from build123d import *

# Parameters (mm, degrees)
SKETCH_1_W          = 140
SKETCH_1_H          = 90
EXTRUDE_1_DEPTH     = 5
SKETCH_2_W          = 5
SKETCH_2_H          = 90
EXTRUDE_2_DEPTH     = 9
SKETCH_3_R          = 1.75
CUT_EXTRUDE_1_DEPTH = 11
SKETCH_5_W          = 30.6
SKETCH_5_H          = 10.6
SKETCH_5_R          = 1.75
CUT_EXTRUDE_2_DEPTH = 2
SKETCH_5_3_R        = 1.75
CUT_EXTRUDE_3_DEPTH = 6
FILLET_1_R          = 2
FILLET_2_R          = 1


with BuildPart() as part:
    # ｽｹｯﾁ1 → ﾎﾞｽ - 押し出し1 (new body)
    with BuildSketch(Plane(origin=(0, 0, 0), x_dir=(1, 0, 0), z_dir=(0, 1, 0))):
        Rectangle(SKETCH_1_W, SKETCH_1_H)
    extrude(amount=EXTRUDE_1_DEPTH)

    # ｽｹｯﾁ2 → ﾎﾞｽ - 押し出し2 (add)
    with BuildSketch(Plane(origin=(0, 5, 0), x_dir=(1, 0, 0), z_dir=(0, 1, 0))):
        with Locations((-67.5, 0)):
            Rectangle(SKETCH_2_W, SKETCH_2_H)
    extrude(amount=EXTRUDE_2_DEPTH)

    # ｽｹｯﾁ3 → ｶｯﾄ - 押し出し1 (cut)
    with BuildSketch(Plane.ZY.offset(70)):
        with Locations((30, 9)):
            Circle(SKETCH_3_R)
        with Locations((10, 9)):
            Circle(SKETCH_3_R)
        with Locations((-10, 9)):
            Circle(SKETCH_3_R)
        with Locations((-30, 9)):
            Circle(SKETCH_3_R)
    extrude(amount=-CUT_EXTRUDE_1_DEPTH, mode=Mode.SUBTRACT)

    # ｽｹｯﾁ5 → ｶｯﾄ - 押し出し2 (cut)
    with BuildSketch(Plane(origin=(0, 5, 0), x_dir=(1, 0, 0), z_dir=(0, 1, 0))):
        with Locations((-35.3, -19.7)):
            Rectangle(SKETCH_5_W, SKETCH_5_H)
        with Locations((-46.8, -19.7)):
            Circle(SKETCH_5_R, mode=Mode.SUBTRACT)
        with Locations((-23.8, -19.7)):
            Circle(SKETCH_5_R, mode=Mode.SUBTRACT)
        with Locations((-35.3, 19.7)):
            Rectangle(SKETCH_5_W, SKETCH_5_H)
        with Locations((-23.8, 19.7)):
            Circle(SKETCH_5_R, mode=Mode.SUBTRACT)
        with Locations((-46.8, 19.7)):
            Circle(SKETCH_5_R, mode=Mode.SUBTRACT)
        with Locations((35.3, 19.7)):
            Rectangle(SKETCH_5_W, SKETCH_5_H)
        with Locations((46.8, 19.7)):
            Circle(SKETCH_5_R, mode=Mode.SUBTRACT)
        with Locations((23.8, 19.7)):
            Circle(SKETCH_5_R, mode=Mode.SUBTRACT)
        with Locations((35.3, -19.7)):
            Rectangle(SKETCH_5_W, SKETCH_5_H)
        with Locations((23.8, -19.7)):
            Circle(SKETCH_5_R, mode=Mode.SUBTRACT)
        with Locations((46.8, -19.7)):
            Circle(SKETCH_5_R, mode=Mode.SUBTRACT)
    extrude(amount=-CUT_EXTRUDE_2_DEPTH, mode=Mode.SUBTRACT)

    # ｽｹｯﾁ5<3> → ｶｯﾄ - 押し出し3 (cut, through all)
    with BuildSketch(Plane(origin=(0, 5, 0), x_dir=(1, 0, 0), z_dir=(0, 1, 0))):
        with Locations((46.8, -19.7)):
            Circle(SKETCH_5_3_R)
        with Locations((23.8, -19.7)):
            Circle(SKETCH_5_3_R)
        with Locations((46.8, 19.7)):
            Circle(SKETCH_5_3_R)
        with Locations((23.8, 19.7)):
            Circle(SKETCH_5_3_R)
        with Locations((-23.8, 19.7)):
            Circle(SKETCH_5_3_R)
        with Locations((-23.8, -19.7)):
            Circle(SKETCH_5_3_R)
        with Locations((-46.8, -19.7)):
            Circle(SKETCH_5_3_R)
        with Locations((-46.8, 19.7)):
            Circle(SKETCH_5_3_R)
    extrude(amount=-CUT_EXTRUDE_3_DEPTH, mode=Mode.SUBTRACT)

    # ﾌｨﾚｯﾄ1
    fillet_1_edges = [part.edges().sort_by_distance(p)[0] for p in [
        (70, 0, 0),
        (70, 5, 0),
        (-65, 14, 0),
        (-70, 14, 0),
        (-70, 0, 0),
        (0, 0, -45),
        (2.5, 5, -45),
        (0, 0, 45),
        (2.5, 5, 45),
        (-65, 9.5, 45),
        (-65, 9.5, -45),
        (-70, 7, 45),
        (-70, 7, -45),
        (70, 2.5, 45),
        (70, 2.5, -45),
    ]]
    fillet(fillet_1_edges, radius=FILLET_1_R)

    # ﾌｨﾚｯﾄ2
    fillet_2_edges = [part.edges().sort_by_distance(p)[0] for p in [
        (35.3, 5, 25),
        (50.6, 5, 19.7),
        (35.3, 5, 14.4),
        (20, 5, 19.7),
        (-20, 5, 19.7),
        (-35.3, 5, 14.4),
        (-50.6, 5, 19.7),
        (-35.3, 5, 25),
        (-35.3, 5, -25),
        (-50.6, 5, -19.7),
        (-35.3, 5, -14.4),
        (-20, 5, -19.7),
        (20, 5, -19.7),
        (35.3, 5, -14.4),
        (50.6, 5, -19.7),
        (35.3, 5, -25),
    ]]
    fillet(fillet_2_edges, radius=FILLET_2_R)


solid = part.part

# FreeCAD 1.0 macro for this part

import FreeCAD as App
import Part
import Sketcher

V = App.Vector
Q = App.Units.Quantity


def edges_at(feature, points):
    """Names of the edges that pass closest to the given points."""
    edges = feature.Shape.Edges
    near = lambda p: min(range(len(edges)), key=lambda i: edges[i].distToShape(Part.Vertex(*p))[0])
    return sorted({f"Edge{near(p) + 1}" for p in points})

doc = App.newDocument("Part")
body = doc.addObject("PartDesign::Body", "Body")

# Sketch on XZ plane
sketch1 = doc.addObject("Sketcher::SketchObject", "Sketch")
body.addObject(sketch1)
sketch1.AttachmentSupport = (doc.XZ_Plane, [""])
sketch1.MapMode = "FlatFace"
sketch1.addGeometry(Part.LineSegment(V(-70, -45, 0), V(-70, 45, 0)), False)
sketch1.addGeometry(Part.LineSegment(V(-70, 45, 0), V(70, 45, 0)), False)
sketch1.addGeometry(Part.LineSegment(V(70, 45, 0), V(70, -45, 0)), False)
sketch1.addGeometry(Part.LineSegment(V(70, -45, 0), V(-70, -45, 0)), False)
sketch1.addConstraint(Sketcher.Constraint("Coincident", 0, 2, 1, 1))
sketch1.addConstraint(Sketcher.Constraint("Coincident", 1, 2, 2, 1))
sketch1.addConstraint(Sketcher.Constraint("Coincident", 2, 2, 3, 1))
sketch1.addConstraint(Sketcher.Constraint("Coincident", 3, 2, 0, 1))
sketch1.addConstraint(Sketcher.Constraint("Vertical", 0))
sketch1.addConstraint(Sketcher.Constraint("Horizontal", 1))
sketch1.addConstraint(Sketcher.Constraint("Vertical", 2))
sketch1.addConstraint(Sketcher.Constraint("Horizontal", 3))
sketch1.addConstraint(Sketcher.Constraint("Symmetric", 0, 2, 2, 2, -1, 1))
sketch1.addConstraint(Sketcher.Constraint("DistanceX", 1, 1, 1, 2, Q("140 mm")))
sketch1.addConstraint(Sketcher.Constraint("DistanceY", 0, 1, 0, 2, Q("90 mm")))
pad1 = doc.addObject("PartDesign::Pad", "Pad")
body.addObject(pad1)
pad1.Profile = sketch1
pad1.Length = 5
pad1.Reversed = True

# Sketch on XZ plane
sketch2 = doc.addObject("Sketcher::SketchObject", "Sketch001")
body.addObject(sketch2)
sketch2.AttachmentSupport = (doc.XZ_Plane, [""])
sketch2.MapMode = "FlatFace"
sketch2.AttachmentOffset = App.Placement(V(0, 0, -5), App.Rotation())
sketch2.addGeometry(Part.LineSegment(V(-70, -45, 0), V(-70, 45, 0)), False)
sketch2.addGeometry(Part.LineSegment(V(-70, 45, 0), V(-65, 45, 0)), False)
sketch2.addGeometry(Part.LineSegment(V(-65, 45, 0), V(-65, -45, 0)), False)
sketch2.addGeometry(Part.LineSegment(V(-65, -45, 0), V(-70, -45, 0)), False)
sketch2.addConstraint(Sketcher.Constraint("Coincident", 0, 2, 1, 1))
sketch2.addConstraint(Sketcher.Constraint("Coincident", 1, 2, 2, 1))
sketch2.addConstraint(Sketcher.Constraint("Coincident", 2, 2, 3, 1))
sketch2.addConstraint(Sketcher.Constraint("Coincident", 3, 2, 0, 1))
sketch2.addConstraint(Sketcher.Constraint("Vertical", 0))
sketch2.addConstraint(Sketcher.Constraint("Horizontal", 1))
sketch2.addConstraint(Sketcher.Constraint("Vertical", 2))
sketch2.addConstraint(Sketcher.Constraint("Horizontal", 3))
sketch2.addConstraint(Sketcher.Constraint("DistanceX", 1, 1, 1, 2, Q("5 mm")))
sketch2.addConstraint(Sketcher.Constraint("DistanceY", 0, 1, 0, 2, Q("90 mm")))
sketch2.addConstraint(Sketcher.Constraint("DistanceX", 0, 2, -1, 1, Q("70 mm")))
sketch2.addConstraint(Sketcher.Constraint("DistanceY", -1, 1, 0, 2, Q("45 mm")))
pad2 = doc.addObject("PartDesign::Pad", "Pad001")
body.addObject(pad2)
pad2.Profile = sketch2
pad2.Length = 9
pad2.Reversed = True

# Sketch on YZ plane
sketch3 = doc.addObject("Sketcher::SketchObject", "Sketch002")
body.addObject(sketch3)
sketch3.AttachmentSupport = (doc.YZ_Plane, [""])
sketch3.MapMode = "FlatFace"
sketch3.AttachmentOffset = App.Placement(V(0, 0, -70), App.Rotation())
sketch3.addGeometry(Part.Circle(V(9, 30, 0), V(0, 0, 1), 1.8), False)
sketch3.addGeometry(Part.Circle(V(9, 10, 0), V(0, 0, 1), 1.8), False)
sketch3.addGeometry(Part.Circle(V(9, -10, 0), V(0, 0, 1), 1.8), False)
sketch3.addGeometry(Part.Circle(V(9, -30, 0), V(0, 0, 1), 1.8), False)
sketch3.addConstraint(Sketcher.Constraint("Equal", 0, 1))
sketch3.addConstraint(Sketcher.Constraint("Equal", 1, 2))
sketch3.addConstraint(Sketcher.Constraint("Equal", 2, 3))
sketch3.addConstraint(Sketcher.Constraint("Symmetric", 1, 3, 2, 3, -1))
sketch3.addConstraint(Sketcher.Constraint("Symmetric", 0, 3, 3, 3, -1))
sketch3.addConstraint(Sketcher.Constraint("Vertical", 0, 3, 1, 3))
sketch3.addConstraint(Sketcher.Constraint("Diameter", 0, Q("3.5 mm")))
sketch3.addConstraint(Sketcher.Constraint("DistanceX", -1, 1, 0, 3, Q("9 mm")))
sketch3.addConstraint(Sketcher.Constraint("DistanceY", -1, 1, 0, 3, Q("30 mm")))
sketch3.addConstraint(Sketcher.Constraint("DistanceY", -1, 1, 1, 3, Q("10 mm")))
pocket1 = doc.addObject("PartDesign::Pocket", "Pocket")
body.addObject(pocket1)
pocket1.Profile = sketch3
pocket1.Length = 11
pocket1.Reversed = True

# Sketch on XZ plane
sketch4 = doc.addObject("Sketcher::SketchObject", "Sketch003")
body.addObject(sketch4)
sketch4.AttachmentSupport = (doc.XZ_Plane, [""])
sketch4.MapMode = "FlatFace"
sketch4.AttachmentOffset = App.Placement(V(0, 0, -5), App.Rotation())
sketch4.addGeometry(Part.LineSegment(V(-50.6, 14.4, 0), V(-50.6, 25, 0)), False)
sketch4.addGeometry(Part.LineSegment(V(-50.6, 25, 0), V(-20, 25, 0)), False)
sketch4.addGeometry(Part.LineSegment(V(-20, 25, 0), V(-20, 14.4, 0)), False)
sketch4.addGeometry(Part.LineSegment(V(-20, 14.4, 0), V(-50.6, 14.4, 0)), False)
sketch4.addGeometry(Part.Circle(V(-46.8, 19.7, 0), V(0, 0, 1), 1.8), False)
sketch4.addGeometry(Part.Circle(V(-23.8, 19.7, 0), V(0, 0, 1), 1.8), False)
sketch4.addGeometry(Part.LineSegment(V(-50.6, -25, 0), V(-50.6, -14.4, 0)), False)
sketch4.addGeometry(Part.LineSegment(V(-50.6, -14.4, 0), V(-20, -14.4, 0)), False)
sketch4.addGeometry(Part.LineSegment(V(-20, -14.4, 0), V(-20, -25, 0)), False)
sketch4.addGeometry(Part.LineSegment(V(-20, -25, 0), V(-50.6, -25, 0)), False)
sketch4.addGeometry(Part.Circle(V(-46.8, -19.7, 0), V(0, 0, 1), 1.8), False)
sketch4.addGeometry(Part.Circle(V(-23.8, -19.7, 0), V(0, 0, 1), 1.8), False)
sketch4.addGeometry(Part.LineSegment(V(20, -25, 0), V(20, -14.4, 0)), False)
sketch4.addGeometry(Part.LineSegment(V(20, -14.4, 0), V(50.6, -14.4, 0)), False)
sketch4.addGeometry(Part.LineSegment(V(50.6, -14.4, 0), V(50.6, -25, 0)), False)
sketch4.addGeometry(Part.LineSegment(V(50.6, -25, 0), V(20, -25, 0)), False)
sketch4.addGeometry(Part.Circle(V(23.8, -19.7, 0), V(0, 0, 1), 1.8), False)
sketch4.addGeometry(Part.Circle(V(46.8, -19.7, 0), V(0, 0, 1), 1.8), False)
sketch4.addGeometry(Part.LineSegment(V(20, 14.4, 0), V(20, 25, 0)), False)
sketch4.addGeometry(Part.LineSegment(V(20, 25, 0), V(50.6, 25, 0)), False)
sketch4.addGeometry(Part.LineSegment(V(50.6, 25, 0), V(50.6, 14.4, 0)), False)
sketch4.addGeometry(Part.LineSegment(V(50.6, 14.4, 0), V(20, 14.4, 0)), False)
sketch4.addGeometry(Part.Circle(V(23.8, 19.7, 0), V(0, 0, 1), 1.8), False)
sketch4.addGeometry(Part.Circle(V(46.8, 19.7, 0), V(0, 0, 1), 1.8), False)
sketch4.addConstraint(Sketcher.Constraint("Coincident", 0, 2, 1, 1))
sketch4.addConstraint(Sketcher.Constraint("Coincident", 1, 2, 2, 1))
sketch4.addConstraint(Sketcher.Constraint("Coincident", 2, 2, 3, 1))
sketch4.addConstraint(Sketcher.Constraint("Coincident", 3, 2, 0, 1))
sketch4.addConstraint(Sketcher.Constraint("Coincident", 6, 2, 7, 1))
sketch4.addConstraint(Sketcher.Constraint("Coincident", 7, 2, 8, 1))
sketch4.addConstraint(Sketcher.Constraint("Coincident", 8, 2, 9, 1))
sketch4.addConstraint(Sketcher.Constraint("Coincident", 9, 2, 6, 1))
sketch4.addConstraint(Sketcher.Constraint("Coincident", 12, 2, 13, 1))
sketch4.addConstraint(Sketcher.Constraint("Coincident", 13, 2, 14, 1))
sketch4.addConstraint(Sketcher.Constraint("Coincident", 14, 2, 15, 1))
sketch4.addConstraint(Sketcher.Constraint("Coincident", 15, 2, 12, 1))
sketch4.addConstraint(Sketcher.Constraint("Coincident", 18, 2, 19, 1))
sketch4.addConstraint(Sketcher.Constraint("Coincident", 19, 2, 20, 1))
sketch4.addConstraint(Sketcher.Constraint("Coincident", 20, 2, 21, 1))
sketch4.addConstraint(Sketcher.Constraint("Coincident", 21, 2, 18, 1))
sketch4.addConstraint(Sketcher.Constraint("Vertical", 0))
sketch4.addConstraint(Sketcher.Constraint("Horizontal", 1))
sketch4.addConstraint(Sketcher.Constraint("Vertical", 2))
sketch4.addConstraint(Sketcher.Constraint("Horizontal", 3))
sketch4.addConstraint(Sketcher.Constraint("Vertical", 6))
sketch4.addConstraint(Sketcher.Constraint("Horizontal", 7))
sketch4.addConstraint(Sketcher.Constraint("Vertical", 8))
sketch4.addConstraint(Sketcher.Constraint("Horizontal", 9))
sketch4.addConstraint(Sketcher.Constraint("Vertical", 12))
sketch4.addConstraint(Sketcher.Constraint("Horizontal", 13))
sketch4.addConstraint(Sketcher.Constraint("Vertical", 14))
sketch4.addConstraint(Sketcher.Constraint("Horizontal", 15))
sketch4.addConstraint(Sketcher.Constraint("Vertical", 18))
sketch4.addConstraint(Sketcher.Constraint("Horizontal", 19))
sketch4.addConstraint(Sketcher.Constraint("Vertical", 20))
sketch4.addConstraint(Sketcher.Constraint("Horizontal", 21))
sketch4.addConstraint(Sketcher.Constraint("Equal", 4, 5))
sketch4.addConstraint(Sketcher.Constraint("Equal", 5, 10))
sketch4.addConstraint(Sketcher.Constraint("Equal", 10, 11))
sketch4.addConstraint(Sketcher.Constraint("Equal", 11, 16))
sketch4.addConstraint(Sketcher.Constraint("Equal", 16, 17))
sketch4.addConstraint(Sketcher.Constraint("Equal", 17, 22))
sketch4.addConstraint(Sketcher.Constraint("Equal", 22, 23))
sketch4.addConstraint(Sketcher.Constraint("Symmetric", 5, 3, 16, 3, -1, 1))
sketch4.addConstraint(Sketcher.Constraint("Symmetric", 4, 3, 17, 3, -1, 1))
sketch4.addConstraint(Sketcher.Constraint("Symmetric", 11, 3, 22, 3, -1, 1))
sketch4.addConstraint(Sketcher.Constraint("Symmetric", 10, 3, 23, 3, -1, 1))
sketch4.addConstraint(Sketcher.Constraint("Symmetric", 2, 2, 12, 2, -1, 1))
sketch4.addConstraint(Sketcher.Constraint("Symmetric", 0, 2, 14, 2, -1, 1))
sketch4.addConstraint(Sketcher.Constraint("Symmetric", 8, 2, 18, 2, -1, 1))
sketch4.addConstraint(Sketcher.Constraint("Symmetric", 6, 2, 20, 2, -1, 1))
sketch4.addConstraint(Sketcher.Constraint("Symmetric", 11, 3, 16, 3, -2))
sketch4.addConstraint(Sketcher.Constraint("Symmetric", 10, 3, 17, 3, -2))
sketch4.addConstraint(Sketcher.Constraint("Symmetric", 7, 2, 12, 2, -2))
sketch4.addConstraint(Sketcher.Constraint("Symmetric", 9, 2, 14, 2, -2))
sketch4.addConstraint(Sketcher.Constraint("Horizontal", 4, 3, 5, 3))
sketch4.addConstraint(Sketcher.Constraint("Diameter", 4, Q("3.5 mm")))
sketch4.addConstraint(Sketcher.Constraint("DistanceX", 1, 1, 1, 2, Q("30.6 mm")))
sketch4.addConstraint(Sketcher.Constraint("DistanceY", 0, 1, 0, 2, Q("10.6 mm")))
sketch4.addConstraint(Sketcher.Constraint("DistanceY", -1, 1, 0, 2, Q("25 mm")))
sketch4.addConstraint(Sketcher.Constraint("DistanceX", 1, 2, -1, 1, Q("20 mm")))
sketch4.addConstraint(Sketcher.Constraint("DistanceX", 4, 3, 5, 3, Q("23 mm")))
sketch4.addConstraint(Sketcher.Constraint("DistanceX", 4, 3, -1, 1, Q("46.8 mm")))
sketch4.addConstraint(Sketcher.Constraint("DistanceY", -1, 1, 4, 3, Q("19.7 mm")))
pocket2 = doc.addObject("PartDesign::Pocket", "Pocket001")
body.addObject(pocket2)
pocket2.Profile = sketch4
pocket2.Length = 2
pocket2.Reversed = True

# Sketch on XZ plane
sketch5 = doc.addObject("Sketcher::SketchObject", "Sketch004")
body.addObject(sketch5)
sketch5.AttachmentSupport = (doc.XZ_Plane, [""])
sketch5.MapMode = "FlatFace"
sketch5.AttachmentOffset = App.Placement(V(0, 0, -5), App.Rotation())
sketch5.addGeometry(Part.Circle(V(46.8, 19.7, 0), V(0, 0, 1), 1.8), False)
sketch5.addGeometry(Part.Circle(V(23.8, 19.7, 0), V(0, 0, 1), 1.8), False)
sketch5.addGeometry(Part.Circle(V(46.8, -19.7, 0), V(0, 0, 1), 1.8), False)
sketch5.addGeometry(Part.Circle(V(23.8, -19.7, 0), V(0, 0, 1), 1.8), False)
sketch5.addGeometry(Part.Circle(V(-23.8, -19.7, 0), V(0, 0, 1), 1.8), False)
sketch5.addGeometry(Part.Circle(V(-23.8, 19.7, 0), V(0, 0, 1), 1.8), False)
sketch5.addGeometry(Part.Circle(V(-46.8, 19.7, 0), V(0, 0, 1), 1.8), False)
sketch5.addGeometry(Part.Circle(V(-46.8, -19.7, 0), V(0, 0, 1), 1.8), False)
sketch5.addConstraint(Sketcher.Constraint("Equal", 0, 1))
sketch5.addConstraint(Sketcher.Constraint("Equal", 1, 2))
sketch5.addConstraint(Sketcher.Constraint("Equal", 2, 3))
sketch5.addConstraint(Sketcher.Constraint("Equal", 3, 4))
sketch5.addConstraint(Sketcher.Constraint("Equal", 4, 5))
sketch5.addConstraint(Sketcher.Constraint("Equal", 5, 6))
sketch5.addConstraint(Sketcher.Constraint("Equal", 6, 7))
sketch5.addConstraint(Sketcher.Constraint("Symmetric", 1, 3, 4, 3, -1, 1))
sketch5.addConstraint(Sketcher.Constraint("Symmetric", 3, 3, 5, 3, -1, 1))
sketch5.addConstraint(Sketcher.Constraint("Symmetric", 2, 3, 6, 3, -1, 1))
sketch5.addConstraint(Sketcher.Constraint("Symmetric", 0, 3, 7, 3, -1, 1))
sketch5.addConstraint(Sketcher.Constraint("Symmetric", 3, 3, 4, 3, -2))
sketch5.addConstraint(Sketcher.Constraint("Symmetric", 0, 3, 6, 3, -2))
sketch5.addConstraint(Sketcher.Constraint("Horizontal", 0, 3, 1, 3))
sketch5.addConstraint(Sketcher.Constraint("Diameter", 0, Q("3.5 mm")))
sketch5.addConstraint(Sketcher.Constraint("DistanceX", 1, 3, 0, 3, Q("23 mm")))
sketch5.addConstraint(Sketcher.Constraint("DistanceX", -1, 1, 0, 3, Q("46.8 mm")))
sketch5.addConstraint(Sketcher.Constraint("DistanceY", -1, 1, 0, 3, Q("19.7 mm")))
pocket3 = doc.addObject("PartDesign::Pocket", "Pocket002")
body.addObject(pocket3)
pocket3.Profile = sketch5
pocket3.Type = "ThroughAll"
pocket3.Reversed = True
doc.recompute()

fillet = doc.addObject("PartDesign::Fillet", "Fillet")
body.addObject(fillet)
fillet.Base = (pocket3, edges_at(pocket3, [
    (70, 0, 0),
    (70, 5, 0),
    (-65, 14, 0),
    (-70, 14, 0),
    (-70, 0, 0),
    (0, 0, -45),
    (2.5, 5, -45),
    (0, 0, 45),
    (2.5, 5, 45),
    (-65, 9.5, 45),
    (-65, 9.5, -45),
    (-70, 7, 45),
    (-70, 7, -45),
    (70, 2.5, 45),
    (70, 2.5, -45),
]))
fillet.Radius = 2
doc.recompute()

fillet2 = doc.addObject("PartDesign::Fillet", "Fillet001")
body.addObject(fillet2)
fillet2.Base = (fillet, edges_at(fillet, [
    (35.3, 5, 25),
    (50.6, 5, 19.7),
    (35.3, 5, 14.4),
    (20, 5, 19.7),
    (-20, 5, 19.7),
    (-35.3, 5, 14.4),
    (-50.6, 5, 19.7),
    (-35.3, 5, 25),
    (-35.3, 5, -25),
    (-50.6, 5, -19.7),
    (-35.3, 5, -14.4),
    (-20, 5, -19.7),
    (20, 5, -19.7),
    (35.3, 5, -14.4),
    (50.6, 5, -19.7),
    (35.3, 5, -25),
]))
fillet2.Radius = 1

doc.recompute()
